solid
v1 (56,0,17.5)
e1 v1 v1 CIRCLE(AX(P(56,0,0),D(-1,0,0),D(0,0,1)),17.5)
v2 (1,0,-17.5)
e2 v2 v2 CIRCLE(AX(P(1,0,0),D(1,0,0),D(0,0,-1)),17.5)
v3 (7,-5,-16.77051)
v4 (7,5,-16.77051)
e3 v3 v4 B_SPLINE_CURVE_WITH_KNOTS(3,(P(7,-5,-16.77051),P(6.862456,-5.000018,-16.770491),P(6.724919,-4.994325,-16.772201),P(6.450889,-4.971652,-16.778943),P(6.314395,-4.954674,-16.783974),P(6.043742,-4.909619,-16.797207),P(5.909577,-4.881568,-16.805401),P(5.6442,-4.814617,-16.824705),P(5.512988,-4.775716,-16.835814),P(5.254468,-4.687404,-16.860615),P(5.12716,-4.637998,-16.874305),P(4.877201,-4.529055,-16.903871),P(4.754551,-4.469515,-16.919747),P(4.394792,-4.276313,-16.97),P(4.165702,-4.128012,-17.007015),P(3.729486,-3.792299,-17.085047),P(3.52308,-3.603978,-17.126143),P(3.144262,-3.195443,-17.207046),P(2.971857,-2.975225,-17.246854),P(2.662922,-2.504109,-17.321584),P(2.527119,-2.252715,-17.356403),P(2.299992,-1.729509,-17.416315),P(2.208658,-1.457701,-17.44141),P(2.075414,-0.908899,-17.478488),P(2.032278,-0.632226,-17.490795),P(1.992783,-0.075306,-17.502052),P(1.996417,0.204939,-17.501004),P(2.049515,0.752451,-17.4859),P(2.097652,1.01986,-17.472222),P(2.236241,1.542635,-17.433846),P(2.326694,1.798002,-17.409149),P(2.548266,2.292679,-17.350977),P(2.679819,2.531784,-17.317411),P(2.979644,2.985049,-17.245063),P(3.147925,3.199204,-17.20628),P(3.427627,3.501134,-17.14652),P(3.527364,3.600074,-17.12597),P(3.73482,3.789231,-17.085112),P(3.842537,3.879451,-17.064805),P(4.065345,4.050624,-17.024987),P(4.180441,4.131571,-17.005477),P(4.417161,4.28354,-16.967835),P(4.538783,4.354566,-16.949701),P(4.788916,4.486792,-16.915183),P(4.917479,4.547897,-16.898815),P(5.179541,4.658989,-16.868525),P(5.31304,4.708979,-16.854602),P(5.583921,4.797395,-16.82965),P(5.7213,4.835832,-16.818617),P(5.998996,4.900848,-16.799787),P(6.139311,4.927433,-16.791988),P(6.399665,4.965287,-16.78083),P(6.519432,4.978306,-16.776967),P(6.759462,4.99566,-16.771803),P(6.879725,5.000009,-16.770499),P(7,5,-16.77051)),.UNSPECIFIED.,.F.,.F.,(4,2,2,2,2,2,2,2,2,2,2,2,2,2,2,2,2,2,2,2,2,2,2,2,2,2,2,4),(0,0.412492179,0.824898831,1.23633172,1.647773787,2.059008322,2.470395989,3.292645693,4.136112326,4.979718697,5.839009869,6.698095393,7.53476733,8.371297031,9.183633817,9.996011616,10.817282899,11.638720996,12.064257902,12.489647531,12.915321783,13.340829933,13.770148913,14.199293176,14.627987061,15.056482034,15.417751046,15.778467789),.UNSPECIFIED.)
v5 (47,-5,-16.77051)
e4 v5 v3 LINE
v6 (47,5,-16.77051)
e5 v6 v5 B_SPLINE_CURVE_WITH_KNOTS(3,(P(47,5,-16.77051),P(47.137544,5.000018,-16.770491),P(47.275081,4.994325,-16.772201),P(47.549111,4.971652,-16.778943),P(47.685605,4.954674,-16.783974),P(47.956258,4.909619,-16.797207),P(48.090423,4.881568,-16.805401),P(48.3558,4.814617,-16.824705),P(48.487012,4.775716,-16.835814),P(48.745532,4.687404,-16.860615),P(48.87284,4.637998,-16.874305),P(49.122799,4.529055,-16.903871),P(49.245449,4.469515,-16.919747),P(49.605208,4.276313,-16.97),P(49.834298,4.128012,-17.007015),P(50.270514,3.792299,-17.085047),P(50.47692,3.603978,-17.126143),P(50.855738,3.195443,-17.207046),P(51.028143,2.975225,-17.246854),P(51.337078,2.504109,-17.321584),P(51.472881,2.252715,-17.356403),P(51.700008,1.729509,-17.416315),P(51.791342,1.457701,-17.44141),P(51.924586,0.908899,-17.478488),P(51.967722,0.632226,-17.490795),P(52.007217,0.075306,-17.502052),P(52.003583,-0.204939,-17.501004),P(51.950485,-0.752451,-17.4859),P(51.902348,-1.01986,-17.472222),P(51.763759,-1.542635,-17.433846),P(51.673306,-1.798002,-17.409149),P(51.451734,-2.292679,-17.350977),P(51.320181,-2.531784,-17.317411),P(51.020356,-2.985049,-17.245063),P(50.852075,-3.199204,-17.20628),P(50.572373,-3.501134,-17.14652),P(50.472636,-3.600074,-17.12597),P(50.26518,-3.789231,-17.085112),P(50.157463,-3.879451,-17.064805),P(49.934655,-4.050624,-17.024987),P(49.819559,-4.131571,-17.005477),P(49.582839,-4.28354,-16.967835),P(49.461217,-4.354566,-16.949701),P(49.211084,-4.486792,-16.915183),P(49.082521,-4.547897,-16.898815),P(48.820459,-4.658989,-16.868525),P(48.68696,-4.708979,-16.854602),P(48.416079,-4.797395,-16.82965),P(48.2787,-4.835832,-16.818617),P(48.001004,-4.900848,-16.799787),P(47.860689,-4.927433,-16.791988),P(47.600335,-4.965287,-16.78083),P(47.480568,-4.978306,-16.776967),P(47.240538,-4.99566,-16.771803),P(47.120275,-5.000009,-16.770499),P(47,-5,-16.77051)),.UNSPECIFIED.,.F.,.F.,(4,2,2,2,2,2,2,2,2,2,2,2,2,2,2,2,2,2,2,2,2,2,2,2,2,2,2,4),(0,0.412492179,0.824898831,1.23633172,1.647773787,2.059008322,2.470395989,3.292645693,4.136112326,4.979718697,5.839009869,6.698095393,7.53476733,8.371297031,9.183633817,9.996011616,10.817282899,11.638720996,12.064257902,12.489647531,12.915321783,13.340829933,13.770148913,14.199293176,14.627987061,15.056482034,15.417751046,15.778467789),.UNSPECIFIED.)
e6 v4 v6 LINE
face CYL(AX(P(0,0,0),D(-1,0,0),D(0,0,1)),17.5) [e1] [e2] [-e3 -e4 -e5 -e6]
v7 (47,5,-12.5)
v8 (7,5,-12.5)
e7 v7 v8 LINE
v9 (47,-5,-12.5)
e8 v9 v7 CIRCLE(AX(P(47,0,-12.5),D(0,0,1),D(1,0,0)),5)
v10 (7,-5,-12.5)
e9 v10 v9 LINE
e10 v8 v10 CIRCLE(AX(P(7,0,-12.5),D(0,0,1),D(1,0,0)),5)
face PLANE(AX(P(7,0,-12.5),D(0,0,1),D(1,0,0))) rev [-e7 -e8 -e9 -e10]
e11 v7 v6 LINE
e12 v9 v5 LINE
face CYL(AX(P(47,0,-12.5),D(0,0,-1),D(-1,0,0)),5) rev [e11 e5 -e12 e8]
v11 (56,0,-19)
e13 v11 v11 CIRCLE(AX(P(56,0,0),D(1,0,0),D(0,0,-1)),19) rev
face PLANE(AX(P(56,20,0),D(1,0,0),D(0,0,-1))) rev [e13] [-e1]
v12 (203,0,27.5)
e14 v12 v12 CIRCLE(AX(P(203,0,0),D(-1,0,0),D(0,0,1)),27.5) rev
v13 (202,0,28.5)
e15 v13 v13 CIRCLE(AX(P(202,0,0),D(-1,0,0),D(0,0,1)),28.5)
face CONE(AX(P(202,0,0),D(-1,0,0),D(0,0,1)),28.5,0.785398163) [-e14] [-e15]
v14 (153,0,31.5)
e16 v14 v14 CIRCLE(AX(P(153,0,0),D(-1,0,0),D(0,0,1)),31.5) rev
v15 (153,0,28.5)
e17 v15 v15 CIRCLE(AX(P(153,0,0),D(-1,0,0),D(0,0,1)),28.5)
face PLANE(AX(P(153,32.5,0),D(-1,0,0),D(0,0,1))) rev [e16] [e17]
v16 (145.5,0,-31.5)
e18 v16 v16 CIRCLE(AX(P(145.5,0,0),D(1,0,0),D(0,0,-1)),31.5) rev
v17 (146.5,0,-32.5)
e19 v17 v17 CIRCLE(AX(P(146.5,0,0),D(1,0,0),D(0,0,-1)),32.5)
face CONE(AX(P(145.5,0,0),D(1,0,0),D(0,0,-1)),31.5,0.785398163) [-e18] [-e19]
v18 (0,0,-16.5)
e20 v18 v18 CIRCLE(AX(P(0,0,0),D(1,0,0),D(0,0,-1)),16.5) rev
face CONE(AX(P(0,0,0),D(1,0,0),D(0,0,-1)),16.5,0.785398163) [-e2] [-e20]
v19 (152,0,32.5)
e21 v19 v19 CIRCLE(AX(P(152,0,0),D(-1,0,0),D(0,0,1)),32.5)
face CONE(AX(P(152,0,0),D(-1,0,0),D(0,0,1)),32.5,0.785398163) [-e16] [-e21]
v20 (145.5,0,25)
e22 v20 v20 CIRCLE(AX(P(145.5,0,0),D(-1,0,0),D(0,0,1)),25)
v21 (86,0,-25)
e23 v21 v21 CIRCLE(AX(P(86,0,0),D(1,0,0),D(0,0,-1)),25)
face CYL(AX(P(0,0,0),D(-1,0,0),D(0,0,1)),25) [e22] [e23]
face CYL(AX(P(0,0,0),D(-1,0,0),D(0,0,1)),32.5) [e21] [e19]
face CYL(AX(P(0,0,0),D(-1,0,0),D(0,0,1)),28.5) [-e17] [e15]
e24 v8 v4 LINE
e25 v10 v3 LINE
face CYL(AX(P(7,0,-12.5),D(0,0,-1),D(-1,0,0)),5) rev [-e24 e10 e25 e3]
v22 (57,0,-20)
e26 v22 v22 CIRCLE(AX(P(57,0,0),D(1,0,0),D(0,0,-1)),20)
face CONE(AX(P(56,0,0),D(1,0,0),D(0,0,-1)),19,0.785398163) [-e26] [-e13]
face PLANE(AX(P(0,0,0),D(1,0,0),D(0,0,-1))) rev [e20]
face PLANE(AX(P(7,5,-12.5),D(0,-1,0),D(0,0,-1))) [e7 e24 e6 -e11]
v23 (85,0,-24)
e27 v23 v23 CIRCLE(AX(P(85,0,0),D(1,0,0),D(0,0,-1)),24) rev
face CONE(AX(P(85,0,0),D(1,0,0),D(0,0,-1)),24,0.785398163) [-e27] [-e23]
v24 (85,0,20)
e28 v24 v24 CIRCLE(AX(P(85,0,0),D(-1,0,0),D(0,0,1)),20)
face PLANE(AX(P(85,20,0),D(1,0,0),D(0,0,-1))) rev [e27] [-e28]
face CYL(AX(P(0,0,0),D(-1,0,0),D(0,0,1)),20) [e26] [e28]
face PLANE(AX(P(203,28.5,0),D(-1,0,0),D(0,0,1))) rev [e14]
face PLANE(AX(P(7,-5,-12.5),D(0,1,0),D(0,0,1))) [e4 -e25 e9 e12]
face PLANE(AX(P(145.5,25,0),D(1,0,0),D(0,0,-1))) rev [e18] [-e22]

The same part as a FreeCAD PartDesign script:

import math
import FreeCAD as App
import Part
import Sketcher

V = App.Vector
Q = App.Units.Quantity


def edges_at(feature, points):
    """Names of the edges that pass closest to the given points."""
    edges = feature.Shape.Edges
    near = lambda p: min(range(len(edges)), key=lambda i: edges[i].distToShape(Part.Vertex(*p))[0])
    return sorted({f"Edge{near(p) + 1}" for p in points})


def add_polygon(sketch, points):
    """Adds a closed chain of lines whose ends are joined by coincident constraints."""
    first, n = sketch.GeometryCount, len(points)
    for a, b in zip(points, points[1:] + points[:1]):
        sketch.addGeometry(Part.LineSegment(App.Vector(*a, 0), App.Vector(*b, 0)), False)
    for i in range(n):
        sketch.addConstraint(Sketcher.Constraint("Coincident", first + i, 2, first + (i + 1) % n, 1))

doc = App.newDocument("Part")
body = doc.addObject("PartDesign::Body", "Body")

sketch1 = doc.addObject("Sketcher::SketchObject", "Sketch")
body.addObject(sketch1)
sketch1.AttachmentSupport = (doc.XY_Plane, [""])
sketch1.MapMode = "FlatFace"
add_polygon(sketch1, [(0, 17.5), (0, 0), (203, 0), (203, 28.5), (153, 28.5), (153, 32.5), (145.5, 32.5), (145.5, 25), (85, 25), (85, 20), (56, 20), (56, 17.5)])
sketch1.addConstraint(Sketcher.Constraint("Vertical", 0))
sketch1.addConstraint(Sketcher.Constraint("Horizontal", 1))
sketch1.addConstraint(Sketcher.Constraint("Vertical", 2))
sketch1.addConstraint(Sketcher.Constraint("Horizontal", 3))
sketch1.addConstraint(Sketcher.Constraint("Vertical", 4))
sketch1.addConstraint(Sketcher.Constraint("Horizontal", 5))
sketch1.addConstraint(Sketcher.Constraint("Vertical", 6))
sketch1.addConstraint(Sketcher.Constraint("Horizontal", 7))
sketch1.addConstraint(Sketcher.Constraint("Vertical", 8))
sketch1.addConstraint(Sketcher.Constraint("Horizontal", 9))
sketch1.addConstraint(Sketcher.Constraint("Vertical", 10))
sketch1.addConstraint(Sketcher.Constraint("Horizontal", 11))
sketch1.addConstraint(Sketcher.Constraint("Coincident", 0, 2, -1, 1))
sketch1.addConstraint(Sketcher.Constraint("Equal", 5, 6))
sketch1.addConstraint(Sketcher.Constraint("DistanceX", 1, 1, 1, 2, Q("203 mm")))
sketch1.addConstraint(Sketcher.Constraint("DistanceX", 3, 2, 3, 1, Q("50 mm")))
sketch1.addConstraint(Sketcher.Constraint("DistanceX", 9, 2, 9, 1, Q("29 mm")))
sketch1.addConstraint(Sketcher.Constraint("DistanceX", 11, 2, 11, 1, Q("56 mm")))
sketch1.addConstraint(Sketcher.Constraint("DistanceY", 4, 1, 4, 2, Q("4 mm")))
sketch1.addConstraint(Sketcher.Constraint("DistanceY", 8, 2, 8, 1, Q("5 mm")))
sketch1.addConstraint(Sketcher.Constraint("DistanceX", 5, 2, 5, 1, Q("7.5 mm")))
sketch1.addConstraint(Sketcher.Constraint("DistanceY", 0, 2, 0, 1, Q("17.5 mm")))
sketch1.addConstraint(Sketcher.Constraint("DistanceY", 2, 1, 2, 2, Q("28.5 mm")))
revolution = doc.addObject("PartDesign::Revolution", "Revolution")
body.addObject(revolution)
revolution.Profile = sketch1
revolution.ReferenceAxis = (sketch1, ["H_Axis"])
revolution.Angle = 360
doc.recompute()

chamfer = doc.addObject("PartDesign::Chamfer", "Chamfer")
body.addObject(chamfer)
chamfer.Base = (revolution, edges_at(revolution, [
    (153, 0, -32.5),
    (145.5, 0, -32.5),
    (85, 0, -25),
    (56, 0, -20),
    (0, 0, -17.5),
    (203, 0, -28.5),
]))
chamfer.Size = 1

sketch2 = doc.addObject("Sketcher::SketchObject", "Sketch001")
body.addObject(sketch2)
sketch2.AttachmentSupport = (doc.XY_Plane, [""])
sketch2.MapMode = "FlatFace"
sketch2.AttachmentOffset = App.Placement(V(0, 0, -17.5), App.Rotation())
sketch2.addGeometry(Part.LineSegment(V(47, 5, 0), V(7, 5, 0)), False)
sketch2.addGeometry(Part.ArcOfCircle(Part.Circle(V(7, 0, 0), V(0, 0, 1), 5), math.radians(90), math.radians(270)), False)
sketch2.addGeometry(Part.LineSegment(V(7, -5, 0), V(47, -5, 0)), False)
sketch2.addGeometry(Part.ArcOfCircle(Part.Circle(V(47, 0, 0), V(0, 0, 1), 5), math.radians(-90), math.radians(90)), False)
sketch2.addConstraint(Sketcher.Constraint("Tangent", 0, 2, 1, 1))
sketch2.addConstraint(Sketcher.Constraint("Tangent", 1, 2, 2, 1))
sketch2.addConstraint(Sketcher.Constraint("Tangent", 2, 2, 3, 1))
sketch2.addConstraint(Sketcher.Constraint("Tangent", 3, 2, 0, 1))
sketch2.addConstraint(Sketcher.Constraint("Horizontal", 0))
sketch2.addConstraint(Sketcher.Constraint("Horizontal", 2))
sketch2.addConstraint(Sketcher.Constraint("PointOnObject", 1, 3, -1))
sketch2.addConstraint(Sketcher.Constraint("Radius", 1, Q("5 mm")))
sketch2.addConstraint(Sketcher.Constraint("DistanceX", 0, 2, 0, 1, Q("40 mm")))
sketch2.addConstraint(Sketcher.Constraint("DistanceX", -1, 1, 1, 3, Q("7 mm")))
pocket1 = doc.addObject("PartDesign::Pocket", "Pocket")
body.addObject(pocket1)
pocket1.Profile = sketch2
pocket1.Length = 5
pocket1.Reversed = True

doc.recompute()
